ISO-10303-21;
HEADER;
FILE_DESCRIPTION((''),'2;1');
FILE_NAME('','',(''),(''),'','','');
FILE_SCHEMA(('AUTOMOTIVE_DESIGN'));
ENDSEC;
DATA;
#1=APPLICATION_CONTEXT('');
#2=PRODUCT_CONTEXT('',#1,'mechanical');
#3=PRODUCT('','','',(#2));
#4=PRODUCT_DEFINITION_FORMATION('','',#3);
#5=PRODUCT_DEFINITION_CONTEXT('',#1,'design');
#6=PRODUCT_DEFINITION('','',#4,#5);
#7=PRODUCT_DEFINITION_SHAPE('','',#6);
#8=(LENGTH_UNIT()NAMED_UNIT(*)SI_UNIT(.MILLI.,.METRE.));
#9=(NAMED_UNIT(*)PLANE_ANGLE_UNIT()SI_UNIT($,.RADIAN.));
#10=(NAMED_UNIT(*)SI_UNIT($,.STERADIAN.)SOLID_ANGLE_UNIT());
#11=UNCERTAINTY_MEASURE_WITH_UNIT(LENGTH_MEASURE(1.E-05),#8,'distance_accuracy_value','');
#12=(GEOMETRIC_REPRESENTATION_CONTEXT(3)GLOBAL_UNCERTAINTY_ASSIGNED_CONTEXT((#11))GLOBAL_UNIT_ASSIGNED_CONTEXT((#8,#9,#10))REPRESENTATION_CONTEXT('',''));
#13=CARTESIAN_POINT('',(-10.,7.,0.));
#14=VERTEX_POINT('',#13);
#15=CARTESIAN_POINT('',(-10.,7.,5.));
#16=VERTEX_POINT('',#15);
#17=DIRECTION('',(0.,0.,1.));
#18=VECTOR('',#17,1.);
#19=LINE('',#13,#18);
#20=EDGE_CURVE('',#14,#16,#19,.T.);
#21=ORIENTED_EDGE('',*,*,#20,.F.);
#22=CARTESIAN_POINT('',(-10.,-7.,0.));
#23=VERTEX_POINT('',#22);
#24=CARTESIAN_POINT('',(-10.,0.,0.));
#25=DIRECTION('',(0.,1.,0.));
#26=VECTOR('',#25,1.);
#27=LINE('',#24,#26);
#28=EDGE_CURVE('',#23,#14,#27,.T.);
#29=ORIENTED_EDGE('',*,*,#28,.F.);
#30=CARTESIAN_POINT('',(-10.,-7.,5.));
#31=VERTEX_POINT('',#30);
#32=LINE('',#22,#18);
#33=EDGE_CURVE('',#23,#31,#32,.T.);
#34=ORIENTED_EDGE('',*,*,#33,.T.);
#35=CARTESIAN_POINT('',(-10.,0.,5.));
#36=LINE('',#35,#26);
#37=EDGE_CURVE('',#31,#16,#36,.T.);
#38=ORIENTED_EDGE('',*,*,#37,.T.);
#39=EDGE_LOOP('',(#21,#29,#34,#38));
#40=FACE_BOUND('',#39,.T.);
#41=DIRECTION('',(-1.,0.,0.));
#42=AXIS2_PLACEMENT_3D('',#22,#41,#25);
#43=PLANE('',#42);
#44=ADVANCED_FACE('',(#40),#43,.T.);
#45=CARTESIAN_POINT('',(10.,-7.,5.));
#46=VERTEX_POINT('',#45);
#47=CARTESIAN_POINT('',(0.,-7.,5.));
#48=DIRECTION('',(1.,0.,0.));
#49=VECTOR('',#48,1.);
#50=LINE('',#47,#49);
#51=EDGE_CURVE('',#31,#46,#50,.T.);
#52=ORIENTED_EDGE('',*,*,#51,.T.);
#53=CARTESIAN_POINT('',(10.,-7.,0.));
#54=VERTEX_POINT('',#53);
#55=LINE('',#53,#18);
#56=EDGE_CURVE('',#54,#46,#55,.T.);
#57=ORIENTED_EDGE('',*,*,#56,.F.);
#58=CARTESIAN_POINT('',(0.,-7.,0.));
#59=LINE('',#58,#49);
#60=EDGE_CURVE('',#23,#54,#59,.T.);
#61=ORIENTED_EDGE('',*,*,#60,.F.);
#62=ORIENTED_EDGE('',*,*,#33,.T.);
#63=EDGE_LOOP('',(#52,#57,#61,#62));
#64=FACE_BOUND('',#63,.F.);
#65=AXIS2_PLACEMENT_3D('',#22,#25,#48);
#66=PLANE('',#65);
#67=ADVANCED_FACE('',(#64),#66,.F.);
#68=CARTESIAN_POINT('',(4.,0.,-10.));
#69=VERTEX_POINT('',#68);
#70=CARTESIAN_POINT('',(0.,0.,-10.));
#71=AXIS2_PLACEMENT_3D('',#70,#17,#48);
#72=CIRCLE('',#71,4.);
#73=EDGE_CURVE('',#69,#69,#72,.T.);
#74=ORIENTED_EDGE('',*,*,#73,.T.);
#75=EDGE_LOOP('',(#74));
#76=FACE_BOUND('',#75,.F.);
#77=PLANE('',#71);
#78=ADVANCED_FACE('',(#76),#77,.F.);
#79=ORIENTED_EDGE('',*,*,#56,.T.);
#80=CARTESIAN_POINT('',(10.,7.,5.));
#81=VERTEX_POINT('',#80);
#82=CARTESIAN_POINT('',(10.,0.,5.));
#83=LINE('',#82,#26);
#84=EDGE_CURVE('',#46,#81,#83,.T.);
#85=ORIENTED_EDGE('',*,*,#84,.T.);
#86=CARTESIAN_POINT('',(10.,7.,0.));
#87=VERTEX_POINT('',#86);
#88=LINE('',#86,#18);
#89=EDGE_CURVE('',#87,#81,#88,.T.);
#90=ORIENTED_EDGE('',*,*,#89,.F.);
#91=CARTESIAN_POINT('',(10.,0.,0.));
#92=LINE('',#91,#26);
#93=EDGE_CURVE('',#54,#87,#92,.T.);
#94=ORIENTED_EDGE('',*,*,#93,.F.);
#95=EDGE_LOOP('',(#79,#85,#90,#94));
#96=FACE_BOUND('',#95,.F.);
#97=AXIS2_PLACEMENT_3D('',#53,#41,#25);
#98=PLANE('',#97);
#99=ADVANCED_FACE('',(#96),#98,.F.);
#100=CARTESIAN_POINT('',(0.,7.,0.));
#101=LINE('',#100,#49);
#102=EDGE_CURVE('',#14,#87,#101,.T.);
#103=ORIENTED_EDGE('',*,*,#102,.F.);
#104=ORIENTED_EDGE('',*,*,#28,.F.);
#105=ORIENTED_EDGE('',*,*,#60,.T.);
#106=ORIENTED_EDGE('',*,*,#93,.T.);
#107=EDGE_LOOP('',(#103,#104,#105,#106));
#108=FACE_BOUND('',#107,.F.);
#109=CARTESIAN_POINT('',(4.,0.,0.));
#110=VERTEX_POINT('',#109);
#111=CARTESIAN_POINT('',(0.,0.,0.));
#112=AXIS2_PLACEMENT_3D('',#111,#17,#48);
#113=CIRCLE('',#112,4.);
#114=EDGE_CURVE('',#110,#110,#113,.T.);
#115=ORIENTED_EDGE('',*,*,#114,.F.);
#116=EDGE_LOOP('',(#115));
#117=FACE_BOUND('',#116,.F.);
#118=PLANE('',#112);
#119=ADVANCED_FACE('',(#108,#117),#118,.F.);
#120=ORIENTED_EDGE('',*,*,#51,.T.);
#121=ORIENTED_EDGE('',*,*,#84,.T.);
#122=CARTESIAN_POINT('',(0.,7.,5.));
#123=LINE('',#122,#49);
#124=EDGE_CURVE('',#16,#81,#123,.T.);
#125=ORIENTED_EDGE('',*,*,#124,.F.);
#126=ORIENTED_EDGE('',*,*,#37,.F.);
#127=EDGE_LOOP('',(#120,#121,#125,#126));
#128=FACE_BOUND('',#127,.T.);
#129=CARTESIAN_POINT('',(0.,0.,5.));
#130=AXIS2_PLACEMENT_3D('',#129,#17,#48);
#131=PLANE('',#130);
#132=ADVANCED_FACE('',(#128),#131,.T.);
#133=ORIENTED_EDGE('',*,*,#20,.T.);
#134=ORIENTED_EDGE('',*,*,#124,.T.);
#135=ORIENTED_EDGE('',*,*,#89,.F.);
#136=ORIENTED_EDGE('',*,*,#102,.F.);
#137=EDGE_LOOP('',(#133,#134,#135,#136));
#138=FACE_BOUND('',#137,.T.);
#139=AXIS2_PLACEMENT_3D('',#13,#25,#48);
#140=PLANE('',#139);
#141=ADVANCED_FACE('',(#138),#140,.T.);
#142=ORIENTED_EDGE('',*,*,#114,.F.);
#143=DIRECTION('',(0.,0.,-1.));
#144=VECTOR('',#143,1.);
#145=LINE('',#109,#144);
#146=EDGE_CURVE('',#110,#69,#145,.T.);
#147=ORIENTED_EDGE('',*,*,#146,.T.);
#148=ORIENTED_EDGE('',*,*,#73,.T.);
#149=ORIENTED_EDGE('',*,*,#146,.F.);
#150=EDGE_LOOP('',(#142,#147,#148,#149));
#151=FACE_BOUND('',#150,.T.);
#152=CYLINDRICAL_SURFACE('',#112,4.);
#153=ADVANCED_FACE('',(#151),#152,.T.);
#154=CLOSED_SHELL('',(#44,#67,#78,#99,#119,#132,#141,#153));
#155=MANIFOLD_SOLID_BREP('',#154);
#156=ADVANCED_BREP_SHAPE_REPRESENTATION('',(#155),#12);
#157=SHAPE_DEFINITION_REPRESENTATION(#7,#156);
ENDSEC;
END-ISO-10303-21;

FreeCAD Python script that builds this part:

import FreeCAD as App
import Part
import Sketcher

V = App.Vector
Q = App.Units.Quantity

doc = App.newDocument("Part")
body = doc.addObject("PartDesign::Body", "Body")

sketch1 = body.newObject("Sketcher::SketchObject", "Sketch")
sketch1.AttachmentSupport = (doc.getObject("XY_Plane"), [""])
sketch1.MapMode = "FlatFace"
sketch1.addGeometry(Part.LineSegment(V(-10, 7, 0), V(-10, -7, 0)), False)
sketch1.addGeometry(Part.LineSegment(V(-10, -7, 0), V(10, -7, 0)), False)
sketch1.addGeometry(Part.LineSegment(V(10, -7, 0), V(10, 7, 0)), False)
sketch1.addGeometry(Part.LineSegment(V(10, 7, 0), V(-10, 7, 0)), False)
sketch1.addConstraint(Sketcher.Constraint("Coincident", 0, 2, 1, 1))
sketch1.addConstraint(Sketcher.Constraint("Coincident", 1, 2, 2, 1))
sketch1.addConstraint(Sketcher.Constraint("Coincident", 2, 2, 3, 1))
sketch1.addConstraint(Sketcher.Constraint("Coincident", 3, 2, 0, 1))
sketch1.addConstraint(Sketcher.Constraint("Vertical", 0))
sketch1.addConstraint(Sketcher.Constraint("Horizontal", 1))
sketch1.addConstraint(Sketcher.Constraint("Vertical", 2))
sketch1.addConstraint(Sketcher.Constraint("Horizontal", 3))
sketch1.addConstraint(Sketcher.Constraint("Symmetric", 0, 2, 2, 2, -1, 1))
sketch1.addConstraint(Sketcher.Constraint("DistanceX", 1, 1, 1, 2, Q("20 mm")))
sketch1.addConstraint(Sketcher.Constraint("DistanceY", 0, 2, 0, 1, Q("14 mm")))
pad1 = body.newObject("PartDesign::Pad", "Pad")
pad1.Profile = sketch1
pad1.Length = 5

sketch2 = body.newObject("Sketcher::SketchObject", "Sketch001")
sketch2.AttachmentSupport = (doc.getObject("XY_Plane"), [""])
sketch2.MapMode = "FlatFace"
sketch2.addGeometry(Part.Circle(V(0, 0, 0), V(0, 0, 1), 4), False)
sketch2.addConstraint(Sketcher.Constraint("Coincident", 0, 3, -1, 1))
sketch2.addConstraint(Sketcher.Constraint("Diameter", 0, Q("8 mm")))
pad2 = body.newObject("PartDesign::Pad", "Pad001")
pad2.Profile = sketch2
pad2.Length = 10
pad2.Reversed = True

doc.recompute()
